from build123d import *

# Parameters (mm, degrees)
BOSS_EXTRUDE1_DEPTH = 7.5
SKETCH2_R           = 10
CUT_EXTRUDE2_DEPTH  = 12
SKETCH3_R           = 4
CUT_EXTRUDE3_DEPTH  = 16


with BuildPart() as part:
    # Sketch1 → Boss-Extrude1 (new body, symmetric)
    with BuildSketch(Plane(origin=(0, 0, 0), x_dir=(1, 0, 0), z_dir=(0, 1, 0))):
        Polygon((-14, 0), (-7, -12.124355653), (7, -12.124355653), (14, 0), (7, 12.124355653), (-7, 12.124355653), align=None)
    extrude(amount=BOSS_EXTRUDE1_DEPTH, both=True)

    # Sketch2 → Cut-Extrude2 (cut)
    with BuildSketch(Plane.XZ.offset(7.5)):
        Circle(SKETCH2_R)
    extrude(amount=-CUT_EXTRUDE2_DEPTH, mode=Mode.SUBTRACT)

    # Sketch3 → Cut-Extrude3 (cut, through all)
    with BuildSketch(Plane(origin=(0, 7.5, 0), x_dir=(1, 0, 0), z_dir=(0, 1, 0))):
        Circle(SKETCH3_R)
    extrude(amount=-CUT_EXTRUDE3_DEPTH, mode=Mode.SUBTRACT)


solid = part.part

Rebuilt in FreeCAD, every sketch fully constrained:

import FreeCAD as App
import Part
import Sketcher
Q = App.Units.Quantity


def add_polygon(sketch, points):
    """Adds a closed chain of lines whose ends are joined by coincident constraints."""
    first, n = sketch.GeometryCount, len(points)
    for a, b in zip(points, points[1:] + points[:1]):
        sketch.addGeometry(Part.LineSegment(App.Vector(*a, 0), App.Vector(*b, 0)), False)
    for i in range(n):
        sketch.addConstraint(Sketcher.Constraint("Coincident", first + i, 2, first + (i + 1) % n, 1))

doc = App.newDocument("Part")
body = doc.addObject("PartDesign::Body", "Body")

# Sketch on XZ plane
sketch1 = body.newObject("Sketcher::SketchObject", "Sketch")
sketch1.AttachmentSupport = (doc.getObject("XZ_Plane"), [""])
sketch1.MapMode = "FlatFace"
add_polygon(sketch1, [(-14, 0), (-7, 12), (7, 12), (14, 0), (7, -12), (-7, -12)])  # lines 0-5
sketch1.addConstraint(Sketcher.Constraint("Horizontal", 1))
sketch1.addConstraint(Sketcher.Constraint("Horizontal", 4))
sketch1.addConstraint(Sketcher.Constraint("Symmetric", 0, 2, 3, 2, -1, 1))
sketch1.addConstraint(Sketcher.Constraint("Symmetric", 2, 2, 5, 2, -1, 1))
sketch1.addConstraint(Sketcher.Constraint("PointOnObject", 2, 2, -1))
sketch1.addConstraint(Sketcher.Constraint("Parallel", 2, 5))
sketch1.addConstraint(Sketcher.Constraint("Vertical", 1, 2, 3, 2))
sketch1.addConstraint(Sketcher.Constraint("DistanceX", 1, 1, 1, 2, Q("14 mm")))
sketch1.addConstraint(Sketcher.Constraint("Angle", 0, Q("60 deg")))
sketch1.addConstraint(Sketcher.Constraint("Distance", 0, Q("14 mm")))
pad1 = body.newObject("PartDesign::Pad", "Pad")
pad1.Profile = sketch1
pad1.Length = 15
pad1.Midplane = True

# Sketch on XZ plane
sketch2 = body.newObject("Sketcher::SketchObject", "Sketch001")
sketch2.AttachmentSupport = (doc.getObject("XZ_Plane"), [""])
sketch2.MapMode = "FlatFace"
sketch2.AttachmentOffset = App.Placement(App.Vector(0, 0, 7.5), App.Rotation())
sketch2.addGeometry(Part.Circle(App.Vector(0, 0, 0), App.Vector(0, 0, 1), 10), False)
sketch2.addConstraint(Sketcher.Constraint("Coincident", 0, 3, -1, 1))
sketch2.addConstraint(Sketcher.Constraint("Diameter", 0, Q("20 mm")))
pocket1 = body.newObject("PartDesign::Pocket", "Pocket")
pocket1.Profile = sketch2
pocket1.Length = 12

# Sketch on XZ plane
sketch3 = body.newObject("Sketcher::SketchObject", "Sketch002")
sketch3.AttachmentSupport = (doc.getObject("XZ_Plane"), [""])
sketch3.MapMode = "FlatFace"
sketch3.AttachmentOffset = App.Placement(App.Vector(0, 0, -7.5), App.Rotation())
sketch3.addGeometry(Part.Circle(App.Vector(0, 0, 0), App.Vector(0, 0, 1), 4), False)
sketch3.addConstraint(Sketcher.Constraint("Coincident", 0, 3, -1, 1))
sketch3.addConstraint(Sketcher.Constraint("Diameter", 0, Q("8 mm")))
pocket2 = body.newObject("PartDesign::Pocket", "Pocket001")
pocket2.Profile = sketch3
pocket2.Type = "ThroughAll"
pocket2.Reversed = True

doc.recompute()
